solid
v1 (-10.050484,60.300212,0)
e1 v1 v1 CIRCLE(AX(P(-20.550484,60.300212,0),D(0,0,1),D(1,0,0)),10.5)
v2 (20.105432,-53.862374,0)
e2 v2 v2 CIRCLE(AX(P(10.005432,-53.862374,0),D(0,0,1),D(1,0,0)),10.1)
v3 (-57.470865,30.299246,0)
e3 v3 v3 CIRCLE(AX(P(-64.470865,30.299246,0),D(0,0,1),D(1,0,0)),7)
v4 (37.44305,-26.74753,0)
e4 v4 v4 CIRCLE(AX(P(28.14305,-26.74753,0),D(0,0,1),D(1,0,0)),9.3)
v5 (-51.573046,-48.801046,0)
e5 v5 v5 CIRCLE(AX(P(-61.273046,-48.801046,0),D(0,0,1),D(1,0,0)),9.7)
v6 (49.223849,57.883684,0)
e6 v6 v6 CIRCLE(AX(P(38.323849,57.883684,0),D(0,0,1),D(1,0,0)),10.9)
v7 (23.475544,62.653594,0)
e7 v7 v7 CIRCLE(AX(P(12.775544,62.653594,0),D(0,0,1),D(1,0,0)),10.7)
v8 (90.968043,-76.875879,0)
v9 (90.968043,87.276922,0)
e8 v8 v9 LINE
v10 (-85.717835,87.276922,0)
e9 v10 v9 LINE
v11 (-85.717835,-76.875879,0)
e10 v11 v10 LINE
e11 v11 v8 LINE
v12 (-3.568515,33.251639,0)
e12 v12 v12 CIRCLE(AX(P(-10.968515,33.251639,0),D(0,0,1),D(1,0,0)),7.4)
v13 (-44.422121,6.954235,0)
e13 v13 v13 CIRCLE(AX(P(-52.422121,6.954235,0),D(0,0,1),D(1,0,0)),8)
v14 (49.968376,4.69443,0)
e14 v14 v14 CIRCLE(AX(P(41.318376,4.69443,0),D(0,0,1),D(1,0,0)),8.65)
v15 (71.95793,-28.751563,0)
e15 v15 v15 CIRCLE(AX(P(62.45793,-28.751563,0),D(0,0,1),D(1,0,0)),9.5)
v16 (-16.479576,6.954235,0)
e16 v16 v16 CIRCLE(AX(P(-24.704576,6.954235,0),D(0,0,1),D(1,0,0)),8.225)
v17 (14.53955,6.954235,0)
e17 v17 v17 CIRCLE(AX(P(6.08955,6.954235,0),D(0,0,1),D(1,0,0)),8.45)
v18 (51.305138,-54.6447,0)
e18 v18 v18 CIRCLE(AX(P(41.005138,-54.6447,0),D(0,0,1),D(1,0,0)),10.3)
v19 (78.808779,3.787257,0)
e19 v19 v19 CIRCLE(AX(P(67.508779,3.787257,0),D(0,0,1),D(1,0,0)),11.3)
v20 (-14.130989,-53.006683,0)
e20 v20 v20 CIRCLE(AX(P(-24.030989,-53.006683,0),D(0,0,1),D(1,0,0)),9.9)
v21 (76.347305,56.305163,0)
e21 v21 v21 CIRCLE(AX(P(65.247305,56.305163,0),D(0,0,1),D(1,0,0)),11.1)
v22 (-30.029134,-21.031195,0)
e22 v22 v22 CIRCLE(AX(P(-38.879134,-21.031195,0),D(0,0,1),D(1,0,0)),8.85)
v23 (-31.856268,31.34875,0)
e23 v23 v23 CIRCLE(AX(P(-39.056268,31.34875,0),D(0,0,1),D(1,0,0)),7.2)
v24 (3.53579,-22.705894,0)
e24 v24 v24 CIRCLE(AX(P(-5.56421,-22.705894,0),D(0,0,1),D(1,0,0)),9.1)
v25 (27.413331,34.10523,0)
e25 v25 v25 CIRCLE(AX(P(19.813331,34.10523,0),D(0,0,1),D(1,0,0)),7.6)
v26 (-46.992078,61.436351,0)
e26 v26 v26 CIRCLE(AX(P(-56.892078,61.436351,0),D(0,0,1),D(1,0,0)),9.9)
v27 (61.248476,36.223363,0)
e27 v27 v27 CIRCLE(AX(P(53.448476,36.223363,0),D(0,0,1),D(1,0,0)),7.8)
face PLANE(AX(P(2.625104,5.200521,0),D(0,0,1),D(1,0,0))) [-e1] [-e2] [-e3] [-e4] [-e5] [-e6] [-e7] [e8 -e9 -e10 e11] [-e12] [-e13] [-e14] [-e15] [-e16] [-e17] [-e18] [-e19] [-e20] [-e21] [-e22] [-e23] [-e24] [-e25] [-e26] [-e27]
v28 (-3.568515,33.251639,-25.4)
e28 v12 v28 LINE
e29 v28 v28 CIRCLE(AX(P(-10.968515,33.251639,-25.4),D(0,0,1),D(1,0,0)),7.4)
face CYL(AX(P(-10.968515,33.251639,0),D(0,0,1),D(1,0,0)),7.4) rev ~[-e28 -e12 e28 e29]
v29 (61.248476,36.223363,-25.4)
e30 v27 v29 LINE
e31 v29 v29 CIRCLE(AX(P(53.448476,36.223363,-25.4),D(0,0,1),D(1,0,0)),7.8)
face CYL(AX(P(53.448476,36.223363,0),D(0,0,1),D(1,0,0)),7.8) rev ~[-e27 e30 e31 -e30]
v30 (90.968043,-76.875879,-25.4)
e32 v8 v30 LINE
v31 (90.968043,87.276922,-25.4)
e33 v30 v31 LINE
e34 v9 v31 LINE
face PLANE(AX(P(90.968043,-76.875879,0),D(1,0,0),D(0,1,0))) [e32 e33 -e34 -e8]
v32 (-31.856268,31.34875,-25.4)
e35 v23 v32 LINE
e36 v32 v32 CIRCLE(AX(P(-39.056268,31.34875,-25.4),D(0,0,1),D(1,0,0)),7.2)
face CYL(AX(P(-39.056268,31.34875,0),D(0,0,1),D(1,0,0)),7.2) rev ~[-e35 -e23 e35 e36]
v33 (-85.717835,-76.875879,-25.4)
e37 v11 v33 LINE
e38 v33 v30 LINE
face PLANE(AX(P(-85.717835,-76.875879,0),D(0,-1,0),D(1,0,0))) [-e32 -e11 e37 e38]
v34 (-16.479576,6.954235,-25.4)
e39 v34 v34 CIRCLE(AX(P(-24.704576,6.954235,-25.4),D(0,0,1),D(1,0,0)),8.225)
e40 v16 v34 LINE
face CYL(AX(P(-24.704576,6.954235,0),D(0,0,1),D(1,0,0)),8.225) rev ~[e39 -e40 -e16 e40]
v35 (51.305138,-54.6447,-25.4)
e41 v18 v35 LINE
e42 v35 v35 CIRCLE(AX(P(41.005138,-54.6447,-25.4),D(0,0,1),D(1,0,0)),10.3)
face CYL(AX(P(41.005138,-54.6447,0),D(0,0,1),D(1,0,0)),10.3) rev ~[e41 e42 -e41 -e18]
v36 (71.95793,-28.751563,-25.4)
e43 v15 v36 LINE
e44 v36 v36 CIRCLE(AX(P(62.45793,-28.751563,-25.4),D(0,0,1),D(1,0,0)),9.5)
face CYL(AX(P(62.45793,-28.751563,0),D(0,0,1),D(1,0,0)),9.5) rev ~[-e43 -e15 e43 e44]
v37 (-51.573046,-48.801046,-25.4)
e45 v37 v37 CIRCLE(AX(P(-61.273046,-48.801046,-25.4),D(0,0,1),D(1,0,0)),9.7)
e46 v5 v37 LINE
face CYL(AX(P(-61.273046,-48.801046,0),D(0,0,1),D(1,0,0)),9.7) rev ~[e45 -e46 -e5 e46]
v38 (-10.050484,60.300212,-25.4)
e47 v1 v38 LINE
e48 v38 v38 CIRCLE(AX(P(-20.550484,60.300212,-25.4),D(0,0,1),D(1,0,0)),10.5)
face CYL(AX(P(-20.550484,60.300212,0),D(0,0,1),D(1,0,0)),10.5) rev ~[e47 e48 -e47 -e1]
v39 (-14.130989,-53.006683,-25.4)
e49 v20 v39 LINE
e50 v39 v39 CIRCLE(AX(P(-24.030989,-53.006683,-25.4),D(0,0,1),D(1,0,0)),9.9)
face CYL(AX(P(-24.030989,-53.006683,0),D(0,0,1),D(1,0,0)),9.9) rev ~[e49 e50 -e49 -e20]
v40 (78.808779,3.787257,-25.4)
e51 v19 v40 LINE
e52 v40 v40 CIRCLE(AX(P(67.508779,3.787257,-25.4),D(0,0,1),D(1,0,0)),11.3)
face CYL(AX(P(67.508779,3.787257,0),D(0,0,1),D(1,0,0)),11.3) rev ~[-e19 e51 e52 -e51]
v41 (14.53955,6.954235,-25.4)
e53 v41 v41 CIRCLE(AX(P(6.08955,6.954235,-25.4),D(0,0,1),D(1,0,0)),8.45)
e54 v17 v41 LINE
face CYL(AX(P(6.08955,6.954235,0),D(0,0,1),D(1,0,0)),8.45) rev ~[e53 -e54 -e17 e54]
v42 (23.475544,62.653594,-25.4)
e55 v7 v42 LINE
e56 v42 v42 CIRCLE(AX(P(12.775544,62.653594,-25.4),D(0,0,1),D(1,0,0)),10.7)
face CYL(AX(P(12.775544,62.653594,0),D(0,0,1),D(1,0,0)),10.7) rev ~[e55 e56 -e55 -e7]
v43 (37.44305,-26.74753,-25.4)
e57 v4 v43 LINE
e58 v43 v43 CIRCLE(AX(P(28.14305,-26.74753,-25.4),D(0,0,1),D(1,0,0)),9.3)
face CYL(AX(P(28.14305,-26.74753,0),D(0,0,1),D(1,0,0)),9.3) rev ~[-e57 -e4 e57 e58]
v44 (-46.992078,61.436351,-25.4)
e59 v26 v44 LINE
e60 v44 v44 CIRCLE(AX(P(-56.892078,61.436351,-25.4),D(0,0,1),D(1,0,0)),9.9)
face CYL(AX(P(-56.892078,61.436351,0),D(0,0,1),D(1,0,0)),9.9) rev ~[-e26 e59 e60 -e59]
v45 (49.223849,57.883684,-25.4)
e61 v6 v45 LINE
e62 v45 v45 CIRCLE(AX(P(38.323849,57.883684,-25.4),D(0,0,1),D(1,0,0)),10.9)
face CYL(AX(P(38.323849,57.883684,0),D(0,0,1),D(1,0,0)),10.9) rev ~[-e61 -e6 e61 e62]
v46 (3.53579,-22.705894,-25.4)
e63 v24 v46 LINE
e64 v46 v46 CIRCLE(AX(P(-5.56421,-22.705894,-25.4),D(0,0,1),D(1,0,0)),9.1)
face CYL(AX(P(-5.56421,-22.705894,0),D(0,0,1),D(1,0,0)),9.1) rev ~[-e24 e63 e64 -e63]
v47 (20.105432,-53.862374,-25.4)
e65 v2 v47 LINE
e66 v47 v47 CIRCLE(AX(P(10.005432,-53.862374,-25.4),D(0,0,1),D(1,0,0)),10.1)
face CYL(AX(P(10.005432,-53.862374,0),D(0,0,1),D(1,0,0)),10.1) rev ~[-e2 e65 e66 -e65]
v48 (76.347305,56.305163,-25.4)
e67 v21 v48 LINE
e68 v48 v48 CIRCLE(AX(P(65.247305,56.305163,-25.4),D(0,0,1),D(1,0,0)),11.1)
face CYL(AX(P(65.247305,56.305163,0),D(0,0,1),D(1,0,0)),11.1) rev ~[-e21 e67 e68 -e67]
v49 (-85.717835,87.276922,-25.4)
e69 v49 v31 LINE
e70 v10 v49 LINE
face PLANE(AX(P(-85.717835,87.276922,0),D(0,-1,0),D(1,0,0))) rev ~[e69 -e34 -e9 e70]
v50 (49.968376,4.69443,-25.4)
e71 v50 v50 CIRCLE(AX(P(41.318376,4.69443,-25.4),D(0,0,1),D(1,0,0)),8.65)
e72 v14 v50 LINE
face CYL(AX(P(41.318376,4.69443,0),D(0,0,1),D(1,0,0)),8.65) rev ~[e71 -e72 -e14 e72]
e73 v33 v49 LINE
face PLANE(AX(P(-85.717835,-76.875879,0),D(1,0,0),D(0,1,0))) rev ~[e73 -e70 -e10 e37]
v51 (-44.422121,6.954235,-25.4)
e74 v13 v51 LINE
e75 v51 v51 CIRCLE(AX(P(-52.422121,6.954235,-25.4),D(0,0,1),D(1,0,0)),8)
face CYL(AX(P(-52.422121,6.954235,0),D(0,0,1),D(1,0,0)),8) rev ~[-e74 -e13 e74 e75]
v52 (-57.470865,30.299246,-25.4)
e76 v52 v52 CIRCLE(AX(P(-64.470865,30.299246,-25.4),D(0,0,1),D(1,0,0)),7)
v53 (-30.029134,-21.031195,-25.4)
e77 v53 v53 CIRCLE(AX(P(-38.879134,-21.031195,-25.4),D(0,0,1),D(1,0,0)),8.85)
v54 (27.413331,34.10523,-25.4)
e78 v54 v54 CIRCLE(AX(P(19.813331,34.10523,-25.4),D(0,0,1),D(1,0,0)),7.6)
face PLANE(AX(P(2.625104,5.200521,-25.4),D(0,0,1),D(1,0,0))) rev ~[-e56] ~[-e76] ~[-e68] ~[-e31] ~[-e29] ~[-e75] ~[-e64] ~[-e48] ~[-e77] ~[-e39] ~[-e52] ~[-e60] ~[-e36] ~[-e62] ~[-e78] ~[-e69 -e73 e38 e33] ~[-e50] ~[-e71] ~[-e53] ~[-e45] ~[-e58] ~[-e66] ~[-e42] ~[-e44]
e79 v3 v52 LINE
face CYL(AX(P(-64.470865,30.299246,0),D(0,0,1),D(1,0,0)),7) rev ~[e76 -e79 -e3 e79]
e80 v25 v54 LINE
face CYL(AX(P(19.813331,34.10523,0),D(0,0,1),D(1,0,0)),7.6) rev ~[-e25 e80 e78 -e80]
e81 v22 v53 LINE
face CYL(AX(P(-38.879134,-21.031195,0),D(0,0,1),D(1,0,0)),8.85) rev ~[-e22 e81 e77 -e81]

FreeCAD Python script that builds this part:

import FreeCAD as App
import Part
import Sketcher
from FreeCAD import Vector
Q = App.Units.Quantity


def add_polygon(sketch, points):
    """Adds a closed chain of lines whose ends are joined by coincident constraints."""
    first, n = sketch.GeometryCount, len(points)
    for a, b in zip(points, points[1:] + points[:1]):
        sketch.addGeometry(Part.LineSegment(App.Vector(*a, 0), App.Vector(*b, 0)), False)
    for i in range(n):
        sketch.addConstraint(Sketcher.Constraint("Coincident", first + i, 2, first + (i + 1) % n, 1))

doc = App.newDocument("Part")
body = doc.addObject("PartDesign::Body", "Body")

sketch1 = doc.addObject("Sketcher::SketchObject", "Sketch")
body.addObject(sketch1)
sketch1.AttachmentSupport = (doc.XY_Plane, [""])
sketch1.MapMode = "FlatFace"
add_polygon(sketch1, [(-85.717835, 87.276922), (-85.717835, -76.875879), (90.968043, -76.875879), (90.968043, 87.276922)])
sketch1.addConstraint([
    Sketcher.Constraint("Vertical", 0),
    Sketcher.Constraint("Horizontal", 1),
    Sketcher.Constraint("Vertical", 2),
    Sketcher.Constraint("Horizontal", 3),
    Sketcher.Constraint("DistanceY", 0, 2, 0, 1, Q("164.152801 mm")),
    Sketcher.Constraint("DistanceX", 1, 1, 1, 2, Q("176.685878 mm")),
    Sketcher.Constraint("DistanceY", 0, 2, -1, 1, Q("76.875879 mm")),
    Sketcher.Constraint("DistanceX", 0, 2, -1, 1, Q("85.717835 mm")),
])
pad1 = doc.addObject("PartDesign::Pad", "Pad")
body.addObject(pad1)
pad1.Profile = sketch1
pad1.Length = 25.4
pad1.Reversed = True

sketch2 = doc.addObject("Sketcher::SketchObject", "Sketch001")
body.addObject(sketch2)
sketch2.AttachmentSupport = (doc.XY_Plane, [""])
sketch2.MapMode = "FlatFace"
sketch2.addGeometry(Part.Circle(Vector(-56.892078, 61.436351, 0), Vector(0, 0, 1), 9.9), False)
sketch2.addConstraint([
    Sketcher.Constraint("Diameter", 0, Q("19.8 mm")),
    Sketcher.Constraint("DistanceY", -1, 1, 0, 3, Q("61.436351 mm")),
    Sketcher.Constraint("DistanceX", 0, 3, -1, 1, Q("56.892078 mm")),
])
pocket1 = doc.addObject("PartDesign::Pocket", "Pocket")
body.addObject(pocket1)
pocket1.Profile = sketch2
pocket1.Length = 25.4

sketch3 = doc.addObject("Sketcher::SketchObject", "Sketch002")
body.addObject(sketch3)
sketch3.AttachmentSupport = (doc.XY_Plane, [""])
sketch3.MapMode = "FlatFace"
sketch3.addGeometry(Part.Circle(Vector(-20.550484, 60.300212, 0), Vector(0, 0, 1), 10.5), False)
sketch3.addConstraint([
    Sketcher.Constraint("Diameter", 0, Q("21 mm")),
    Sketcher.Constraint("DistanceX", 0, 3, -1, 1, Q("20.550484 mm")),
    Sketcher.Constraint("DistanceY", -1, 1, 0, 3, Q("60.300212 mm")),
])
pocket2 = doc.addObject("PartDesign::Pocket", "Pocket001")
body.addObject(pocket2)
pocket2.Profile = sketch3
pocket2.Length = 25.4

sketch4 = doc.addObject("Sketcher::SketchObject", "Sketch003")
body.addObject(sketch4)
sketch4.AttachmentSupport = (doc.XY_Plane, [""])
sketch4.MapMode = "FlatFace"
sketch4.addGeometry(Part.Circle(Vector(12.775544, 62.653594, 0), Vector(0, 0, 1), 10.7), False)
sketch4.addConstraint([
    Sketcher.Constraint("Diameter", 0, Q("21.4 mm")),
    Sketcher.Constraint("DistanceX", -1, 1, 0, 3, Q("12.775544 mm")),
    Sketcher.Constraint("DistanceY", -1, 1, 0, 3, Q("62.653594 mm")),
])
pocket3 = doc.addObject("PartDesign::Pocket", "Pocket002")
body.addObject(pocket3)
pocket3.Profile = sketch4
pocket3.Length = 25.4

sketch5 = doc.addObject("Sketcher::SketchObject", "Sketch004")
body.addObject(sketch5)
sketch5.AttachmentSupport = (doc.XY_Plane, [""])
sketch5.MapMode = "FlatFace"
sketch5.addGeometry(Part.Circle(Vector(-64.470865, 30.299246, 0), Vector(0, 0, 1), 7), False)
sketch5.addConstraint([
    Sketcher.Constraint("Diameter", 0, Q("14 mm")),
    Sketcher.Constraint("DistanceX", 0, 3, -1, 1, Q("64.470865 mm")),
    Sketcher.Constraint("DistanceY", -1, 1, 0, 3, Q("30.299246 mm")),
])
pocket4 = doc.addObject("PartDesign::Pocket", "Pocket003")
body.addObject(pocket4)
pocket4.Profile = sketch5
pocket4.Length = 25.4

sketch6 = doc.addObject("Sketcher::SketchObject", "Sketch005")
body.addObject(sketch6)
sketch6.AttachmentSupport = (doc.XY_Plane, [""])
sketch6.MapMode = "FlatFace"
sketch6.addGeometry(Part.Circle(Vector(-39.056268, 31.34875, 0), Vector(0, 0, 1), 7.2), False)
sketch6.addConstraint([
    Sketcher.Constraint("Diameter", 0, Q("14.4 mm")),
    Sketcher.Constraint("DistanceX", 0, 3, -1, 1, Q("39.056268 mm")),
    Sketcher.Constraint("DistanceY", -1, 1, 0, 3, Q("31.34875 mm")),
])
pocket5 = doc.addObject("PartDesign::Pocket", "Pocket004")
body.addObject(pocket5)
pocket5.Profile = sketch6
pocket5.Length = 25.4

sketch7 = doc.addObject("Sketcher::SketchObject", "Sketch006")
body.addObject(sketch7)
sketch7.AttachmentSupport = (doc.XY_Plane, [""])
sketch7.MapMode = "FlatFace"
sketch7.addGeometry(Part.Circle(Vector(19.813331, 34.10523, 0), Vector(0, 0, 1), 7.6), False)
sketch7.addConstraint([
    Sketcher.Constraint("Diameter", 0, Q("15.2 mm")),
    Sketcher.Constraint("DistanceX", -1, 1, 0, 3, Q("19.813331 mm")),
    Sketcher.Constraint("DistanceY", -1, 1, 0, 3, Q("34.10523 mm")),
])
pocket6 = doc.addObject("PartDesign::Pocket", "Pocket005")
body.addObject(pocket6)
pocket6.Profile = sketch7
pocket6.Length = 25.4

sketch8 = doc.addObject("Sketcher::SketchObject", "Sketch007")
body.addObject(sketch8)
sketch8.AttachmentSupport = (doc.XY_Plane, [""])
sketch8.MapMode = "FlatFace"
sketch8.addGeometry(Part.Circle(Vector(-10.968515, 33.251639, 0), Vector(0, 0, 1), 7.4), False)
sketch8.addConstraint([
    Sketcher.Constraint("Diameter", 0, Q("14.8 mm")),
    Sketcher.Constraint("DistanceY", -1, 1, 0, 3, Q("33.251639 mm")),
    Sketcher.Constraint("DistanceX", 0, 3, -1, 1, Q("10.968515 mm")),
])
pocket7 = doc.addObject("PartDesign::Pocket", "Pocket006")
body.addObject(pocket7)
pocket7.Profile = sketch8
pocket7.Length = 25.4

sketch9 = doc.addObject("Sketcher::SketchObject", "Sketch008")
body.addObject(sketch9)
sketch9.AttachmentSupport = (doc.XY_Plane, [""])
sketch9.MapMode = "FlatFace"
sketch9.addGeometry(Part.Circle(Vector(53.448476, 36.223363, 0), Vector(0, 0, 1), 7.8), False)
sketch9.addConstraint([
    Sketcher.Constraint("Diameter", 0, Q("15.6 mm")),
    Sketcher.Constraint("DistanceX", -1, 1, 0, 3, Q("53.448476 mm")),
    Sketcher.Constraint("DistanceY", -1, 1, 0, 3, Q("36.223363 mm")),
])
pocket8 = doc.addObject("PartDesign::Pocket", "Pocket007")
body.addObject(pocket8)
pocket8.Profile = sketch9
pocket8.Length = 25.4

sketch10 = doc.addObject("Sketcher::SketchObject", "Sketch009")
body.addObject(sketch10)
sketch10.AttachmentSupport = (doc.XY_Plane, [""])
sketch10.MapMode = "FlatFace"
sketch10.addGeometry([
    Part.Circle(Vector(-52.422121, 6.954235, 0), Vector(0, 0, 1), 8),
    Part.Circle(Vector(-24.704576, 6.954235, 0), Vector(0, 0, 1), 8.225),
    Part.Circle(Vector(6.08955, 6.954235, 0), Vector(0, 0, 1), 8.45),
    Part.Circle(Vector(41.318376, 4.69443, 0), Vector(0, 0, 1), 8.65),
], False)
sketch10.addConstraint([
    Sketcher.Constraint("Horizontal", 0, 3, 1, 3),
    Sketcher.Constraint("Horizontal", 1, 3, 2, 3),
    Sketcher.Constraint("Diameter", 0, Q("16 mm")),
    Sketcher.Constraint("Diameter", 2, Q("16.9 mm")),
    Sketcher.Constraint("Diameter", 3, Q("17.3 mm")),
    Sketcher.Constraint("Diameter", 1, Q("16.45 mm")),
    Sketcher.Constraint("DistanceX", 0, 3, -1, 1, Q("52.422121 mm")),
    Sketcher.Constraint("DistanceX", -1, 1, 2, 3, Q("6.08955 mm")),
    Sketcher.Constraint("DistanceY", -1, 1, 3, 3, Q("4.69443 mm")),
    Sketcher.Constraint("DistanceY", -1, 1, 0, 3, Q("6.954235 mm")),
    Sketcher.Constraint("DistanceX", 1, 3, -1, 1, Q("24.704576 mm")),
    Sketcher.Constraint("DistanceX", -1, 1, 3, 3, Q("41.318376 mm")),
])
pocket9 = doc.addObject("PartDesign::Pocket", "Pocket008")
body.addObject(pocket9)
pocket9.Profile = sketch10
pocket9.Length = 25.4

sketch11 = doc.addObject("Sketcher::SketchObject", "Sketch010")
body.addObject(sketch11)
sketch11.AttachmentSupport = (doc.XY_Plane, [""])
sketch11.MapMode = "FlatFace"
sketch11.addGeometry([
    Part.Circle(Vector(-38.879134, -21.031195, 0), Vector(0, 0, 1), 8.85),
    Part.Circle(Vector(-5.56421, -22.705894, 0), Vector(0, 0, 1), 9.1),
    Part.Circle(Vector(28.14305, -26.74753, 0), Vector(0, 0, 1), 9.3),
    Part.Circle(Vector(62.45793, -28.751563, 0), Vector(0, 0, 1), 9.5),
    Part.Circle(Vector(-61.273046, -48.801046, 0), Vector(0, 0, 1), 9.7),
    Part.Circle(Vector(-24.030989, -53.006683, 0), Vector(0, 0, 1), 9.9),
    Part.Circle(Vector(10.005432, -53.862374, 0), Vector(0, 0, 1), 10.1),
    Part.Circle(Vector(41.005138, -54.6447, 0), Vector(0, 0, 1), 10.3),
], False)
sketch11.addConstraint([
    Sketcher.Constraint("Diameter", 3, Q("19 mm")),
    Sketcher.Constraint("Diameter", 0, Q("17.7 mm")),
    Sketcher.Constraint("Diameter", 1, Q("18.2 mm")),
    Sketcher.Constraint("Diameter", 2, Q("18.6 mm")),
    Sketcher.Constraint("Diameter", 4, Q("19.4 mm")),
    Sketcher.Constraint("Diameter", 5, Q("19.8 mm")),
    Sketcher.Constraint("Diameter", 6, Q("20.2 mm")),
    Sketcher.Constraint("Diameter", 7, Q("20.6 mm")),
    Sketcher.Constraint("DistanceY", 7, 3, -1, 1, Q("54.6447 mm")),
    Sketcher.Constraint("DistanceY", 1, 3, 0, 3, Q("1.674699 mm")),
    Sketcher.Constraint("DistanceX", 1, 3, -1, 1, Q("5.56421 mm")),
    Sketcher.Constraint("DistanceX", -1, 1, 2, 3, Q("28.14305 mm")),
    Sketcher.Constraint("DistanceY", 2, 3, -1, 1, Q("26.74753 mm")),
    Sketcher.Constraint("DistanceX", -1, 1, 3, 3, Q("62.45793 mm")),
    Sketcher.Constraint("DistanceX", 5, 3, -1, 1, Q("24.030989 mm")),
    Sketcher.Constraint("DistanceX", -1, 1, 7, 3, Q("41.005138 mm")),
    Sketcher.Constraint("DistanceY", 3, 3, 1, 3, Q("6.045669 mm")),
    Sketcher.Constraint("DistanceX", 4, 3, 0, 3, Q("22.393912 mm")),
    Sketcher.Constraint("DistanceY", 4, 3, 0, 3, Q("27.769851 mm")),
    Sketcher.Constraint("DistanceY", 5, 3, 0, 3, Q("31.975488 mm")),
    Sketcher.Constraint("DistanceX", 5, 3, 6, 3, Q("34.036421 mm")),
    Sketcher.Constraint("DistanceY", 6, 3, 5, 3, Q("0.855691 mm")),
    Sketcher.Constraint("DistanceX", 0, 3, -1, 1, Q("38.879134 mm")),
    Sketcher.Constraint("DistanceY", 0, 3, -1, 1, Q("21.031195 mm")),
])
pocket10 = doc.addObject("PartDesign::Pocket", "Pocket009")
body.addObject(pocket10)
pocket10.Profile = sketch11
pocket10.Length = 25.4

sketch12 = doc.addObject("Sketcher::SketchObject", "Sketch011")
body.addObject(sketch12)
sketch12.AttachmentSupport = (doc.XY_Plane, [""])
sketch12.MapMode = "FlatFace"
sketch12.addGeometry(Part.Circle(Vector(38.323849, 57.883684, 0), Vector(0, 0, 1), 10.9), False)
sketch12.addConstraint([
    Sketcher.Constraint("Diameter", 0, Q("21.8 mm")),
    Sketcher.Constraint("DistanceX", -1, 1, 0, 3, Q("38.323849 mm")),
    Sketcher.Constraint("DistanceY", -1, 1, 0, 3, Q("57.883684 mm")),
])
pocket11 = doc.addObject("PartDesign::Pocket", "Pocket010")
body.addObject(pocket11)
pocket11.Profile = sketch12
pocket11.Length = 25.4

sketch13 = doc.addObject("Sketcher::SketchObject", "Sketch012")
body.addObject(sketch13)
sketch13.AttachmentSupport = (doc.XY_Plane, [""])
sketch13.MapMode = "FlatFace"
sketch13.addGeometry(Part.Circle(Vector(65.247305, 56.305163, 0), Vector(0, 0, 1), 11.1), False)
sketch13.addConstraint([
    Sketcher.Constraint("Diameter", 0, Q("22.2 mm")),
    Sketcher.Constraint("DistanceX", -1, 1, 0, 3, Q("65.247305 mm")),
    Sketcher.Constraint("DistanceY", -1, 1, 0, 3, Q("56.305163 mm")),
])
pocket12 = doc.addObject("PartDesign::Pocket", "Pocket011")
body.addObject(pocket12)
pocket12.Profile = sketch13
pocket12.Length = 25.4

sketch14 = doc.addObject("Sketcher::SketchObject", "Sketch013")
body.addObject(sketch14)
sketch14.AttachmentSupport = (doc.XY_Plane, [""])
sketch14.MapMode = "FlatFace"
sketch14.addGeometry(Part.Circle(Vector(67.508779, 3.787257, 0), Vector(0, 0, 1), 11.3), False)
sketch14.addConstraint([
    Sketcher.Constraint("Diameter", 0, Q("22.6 mm")),
    Sketcher.Constraint("DistanceX", -1, 1, 0, 3, Q("67.508779 mm")),
    Sketcher.Constraint("DistanceY", -1, 1, 0, 3, Q("3.787257 mm")),
])
pocket13 = doc.addObject("PartDesign::Pocket", "Pocket012")
body.addObject(pocket13)
pocket13.Profile = sketch14
pocket13.Length = 25.4

doc.recompute()
